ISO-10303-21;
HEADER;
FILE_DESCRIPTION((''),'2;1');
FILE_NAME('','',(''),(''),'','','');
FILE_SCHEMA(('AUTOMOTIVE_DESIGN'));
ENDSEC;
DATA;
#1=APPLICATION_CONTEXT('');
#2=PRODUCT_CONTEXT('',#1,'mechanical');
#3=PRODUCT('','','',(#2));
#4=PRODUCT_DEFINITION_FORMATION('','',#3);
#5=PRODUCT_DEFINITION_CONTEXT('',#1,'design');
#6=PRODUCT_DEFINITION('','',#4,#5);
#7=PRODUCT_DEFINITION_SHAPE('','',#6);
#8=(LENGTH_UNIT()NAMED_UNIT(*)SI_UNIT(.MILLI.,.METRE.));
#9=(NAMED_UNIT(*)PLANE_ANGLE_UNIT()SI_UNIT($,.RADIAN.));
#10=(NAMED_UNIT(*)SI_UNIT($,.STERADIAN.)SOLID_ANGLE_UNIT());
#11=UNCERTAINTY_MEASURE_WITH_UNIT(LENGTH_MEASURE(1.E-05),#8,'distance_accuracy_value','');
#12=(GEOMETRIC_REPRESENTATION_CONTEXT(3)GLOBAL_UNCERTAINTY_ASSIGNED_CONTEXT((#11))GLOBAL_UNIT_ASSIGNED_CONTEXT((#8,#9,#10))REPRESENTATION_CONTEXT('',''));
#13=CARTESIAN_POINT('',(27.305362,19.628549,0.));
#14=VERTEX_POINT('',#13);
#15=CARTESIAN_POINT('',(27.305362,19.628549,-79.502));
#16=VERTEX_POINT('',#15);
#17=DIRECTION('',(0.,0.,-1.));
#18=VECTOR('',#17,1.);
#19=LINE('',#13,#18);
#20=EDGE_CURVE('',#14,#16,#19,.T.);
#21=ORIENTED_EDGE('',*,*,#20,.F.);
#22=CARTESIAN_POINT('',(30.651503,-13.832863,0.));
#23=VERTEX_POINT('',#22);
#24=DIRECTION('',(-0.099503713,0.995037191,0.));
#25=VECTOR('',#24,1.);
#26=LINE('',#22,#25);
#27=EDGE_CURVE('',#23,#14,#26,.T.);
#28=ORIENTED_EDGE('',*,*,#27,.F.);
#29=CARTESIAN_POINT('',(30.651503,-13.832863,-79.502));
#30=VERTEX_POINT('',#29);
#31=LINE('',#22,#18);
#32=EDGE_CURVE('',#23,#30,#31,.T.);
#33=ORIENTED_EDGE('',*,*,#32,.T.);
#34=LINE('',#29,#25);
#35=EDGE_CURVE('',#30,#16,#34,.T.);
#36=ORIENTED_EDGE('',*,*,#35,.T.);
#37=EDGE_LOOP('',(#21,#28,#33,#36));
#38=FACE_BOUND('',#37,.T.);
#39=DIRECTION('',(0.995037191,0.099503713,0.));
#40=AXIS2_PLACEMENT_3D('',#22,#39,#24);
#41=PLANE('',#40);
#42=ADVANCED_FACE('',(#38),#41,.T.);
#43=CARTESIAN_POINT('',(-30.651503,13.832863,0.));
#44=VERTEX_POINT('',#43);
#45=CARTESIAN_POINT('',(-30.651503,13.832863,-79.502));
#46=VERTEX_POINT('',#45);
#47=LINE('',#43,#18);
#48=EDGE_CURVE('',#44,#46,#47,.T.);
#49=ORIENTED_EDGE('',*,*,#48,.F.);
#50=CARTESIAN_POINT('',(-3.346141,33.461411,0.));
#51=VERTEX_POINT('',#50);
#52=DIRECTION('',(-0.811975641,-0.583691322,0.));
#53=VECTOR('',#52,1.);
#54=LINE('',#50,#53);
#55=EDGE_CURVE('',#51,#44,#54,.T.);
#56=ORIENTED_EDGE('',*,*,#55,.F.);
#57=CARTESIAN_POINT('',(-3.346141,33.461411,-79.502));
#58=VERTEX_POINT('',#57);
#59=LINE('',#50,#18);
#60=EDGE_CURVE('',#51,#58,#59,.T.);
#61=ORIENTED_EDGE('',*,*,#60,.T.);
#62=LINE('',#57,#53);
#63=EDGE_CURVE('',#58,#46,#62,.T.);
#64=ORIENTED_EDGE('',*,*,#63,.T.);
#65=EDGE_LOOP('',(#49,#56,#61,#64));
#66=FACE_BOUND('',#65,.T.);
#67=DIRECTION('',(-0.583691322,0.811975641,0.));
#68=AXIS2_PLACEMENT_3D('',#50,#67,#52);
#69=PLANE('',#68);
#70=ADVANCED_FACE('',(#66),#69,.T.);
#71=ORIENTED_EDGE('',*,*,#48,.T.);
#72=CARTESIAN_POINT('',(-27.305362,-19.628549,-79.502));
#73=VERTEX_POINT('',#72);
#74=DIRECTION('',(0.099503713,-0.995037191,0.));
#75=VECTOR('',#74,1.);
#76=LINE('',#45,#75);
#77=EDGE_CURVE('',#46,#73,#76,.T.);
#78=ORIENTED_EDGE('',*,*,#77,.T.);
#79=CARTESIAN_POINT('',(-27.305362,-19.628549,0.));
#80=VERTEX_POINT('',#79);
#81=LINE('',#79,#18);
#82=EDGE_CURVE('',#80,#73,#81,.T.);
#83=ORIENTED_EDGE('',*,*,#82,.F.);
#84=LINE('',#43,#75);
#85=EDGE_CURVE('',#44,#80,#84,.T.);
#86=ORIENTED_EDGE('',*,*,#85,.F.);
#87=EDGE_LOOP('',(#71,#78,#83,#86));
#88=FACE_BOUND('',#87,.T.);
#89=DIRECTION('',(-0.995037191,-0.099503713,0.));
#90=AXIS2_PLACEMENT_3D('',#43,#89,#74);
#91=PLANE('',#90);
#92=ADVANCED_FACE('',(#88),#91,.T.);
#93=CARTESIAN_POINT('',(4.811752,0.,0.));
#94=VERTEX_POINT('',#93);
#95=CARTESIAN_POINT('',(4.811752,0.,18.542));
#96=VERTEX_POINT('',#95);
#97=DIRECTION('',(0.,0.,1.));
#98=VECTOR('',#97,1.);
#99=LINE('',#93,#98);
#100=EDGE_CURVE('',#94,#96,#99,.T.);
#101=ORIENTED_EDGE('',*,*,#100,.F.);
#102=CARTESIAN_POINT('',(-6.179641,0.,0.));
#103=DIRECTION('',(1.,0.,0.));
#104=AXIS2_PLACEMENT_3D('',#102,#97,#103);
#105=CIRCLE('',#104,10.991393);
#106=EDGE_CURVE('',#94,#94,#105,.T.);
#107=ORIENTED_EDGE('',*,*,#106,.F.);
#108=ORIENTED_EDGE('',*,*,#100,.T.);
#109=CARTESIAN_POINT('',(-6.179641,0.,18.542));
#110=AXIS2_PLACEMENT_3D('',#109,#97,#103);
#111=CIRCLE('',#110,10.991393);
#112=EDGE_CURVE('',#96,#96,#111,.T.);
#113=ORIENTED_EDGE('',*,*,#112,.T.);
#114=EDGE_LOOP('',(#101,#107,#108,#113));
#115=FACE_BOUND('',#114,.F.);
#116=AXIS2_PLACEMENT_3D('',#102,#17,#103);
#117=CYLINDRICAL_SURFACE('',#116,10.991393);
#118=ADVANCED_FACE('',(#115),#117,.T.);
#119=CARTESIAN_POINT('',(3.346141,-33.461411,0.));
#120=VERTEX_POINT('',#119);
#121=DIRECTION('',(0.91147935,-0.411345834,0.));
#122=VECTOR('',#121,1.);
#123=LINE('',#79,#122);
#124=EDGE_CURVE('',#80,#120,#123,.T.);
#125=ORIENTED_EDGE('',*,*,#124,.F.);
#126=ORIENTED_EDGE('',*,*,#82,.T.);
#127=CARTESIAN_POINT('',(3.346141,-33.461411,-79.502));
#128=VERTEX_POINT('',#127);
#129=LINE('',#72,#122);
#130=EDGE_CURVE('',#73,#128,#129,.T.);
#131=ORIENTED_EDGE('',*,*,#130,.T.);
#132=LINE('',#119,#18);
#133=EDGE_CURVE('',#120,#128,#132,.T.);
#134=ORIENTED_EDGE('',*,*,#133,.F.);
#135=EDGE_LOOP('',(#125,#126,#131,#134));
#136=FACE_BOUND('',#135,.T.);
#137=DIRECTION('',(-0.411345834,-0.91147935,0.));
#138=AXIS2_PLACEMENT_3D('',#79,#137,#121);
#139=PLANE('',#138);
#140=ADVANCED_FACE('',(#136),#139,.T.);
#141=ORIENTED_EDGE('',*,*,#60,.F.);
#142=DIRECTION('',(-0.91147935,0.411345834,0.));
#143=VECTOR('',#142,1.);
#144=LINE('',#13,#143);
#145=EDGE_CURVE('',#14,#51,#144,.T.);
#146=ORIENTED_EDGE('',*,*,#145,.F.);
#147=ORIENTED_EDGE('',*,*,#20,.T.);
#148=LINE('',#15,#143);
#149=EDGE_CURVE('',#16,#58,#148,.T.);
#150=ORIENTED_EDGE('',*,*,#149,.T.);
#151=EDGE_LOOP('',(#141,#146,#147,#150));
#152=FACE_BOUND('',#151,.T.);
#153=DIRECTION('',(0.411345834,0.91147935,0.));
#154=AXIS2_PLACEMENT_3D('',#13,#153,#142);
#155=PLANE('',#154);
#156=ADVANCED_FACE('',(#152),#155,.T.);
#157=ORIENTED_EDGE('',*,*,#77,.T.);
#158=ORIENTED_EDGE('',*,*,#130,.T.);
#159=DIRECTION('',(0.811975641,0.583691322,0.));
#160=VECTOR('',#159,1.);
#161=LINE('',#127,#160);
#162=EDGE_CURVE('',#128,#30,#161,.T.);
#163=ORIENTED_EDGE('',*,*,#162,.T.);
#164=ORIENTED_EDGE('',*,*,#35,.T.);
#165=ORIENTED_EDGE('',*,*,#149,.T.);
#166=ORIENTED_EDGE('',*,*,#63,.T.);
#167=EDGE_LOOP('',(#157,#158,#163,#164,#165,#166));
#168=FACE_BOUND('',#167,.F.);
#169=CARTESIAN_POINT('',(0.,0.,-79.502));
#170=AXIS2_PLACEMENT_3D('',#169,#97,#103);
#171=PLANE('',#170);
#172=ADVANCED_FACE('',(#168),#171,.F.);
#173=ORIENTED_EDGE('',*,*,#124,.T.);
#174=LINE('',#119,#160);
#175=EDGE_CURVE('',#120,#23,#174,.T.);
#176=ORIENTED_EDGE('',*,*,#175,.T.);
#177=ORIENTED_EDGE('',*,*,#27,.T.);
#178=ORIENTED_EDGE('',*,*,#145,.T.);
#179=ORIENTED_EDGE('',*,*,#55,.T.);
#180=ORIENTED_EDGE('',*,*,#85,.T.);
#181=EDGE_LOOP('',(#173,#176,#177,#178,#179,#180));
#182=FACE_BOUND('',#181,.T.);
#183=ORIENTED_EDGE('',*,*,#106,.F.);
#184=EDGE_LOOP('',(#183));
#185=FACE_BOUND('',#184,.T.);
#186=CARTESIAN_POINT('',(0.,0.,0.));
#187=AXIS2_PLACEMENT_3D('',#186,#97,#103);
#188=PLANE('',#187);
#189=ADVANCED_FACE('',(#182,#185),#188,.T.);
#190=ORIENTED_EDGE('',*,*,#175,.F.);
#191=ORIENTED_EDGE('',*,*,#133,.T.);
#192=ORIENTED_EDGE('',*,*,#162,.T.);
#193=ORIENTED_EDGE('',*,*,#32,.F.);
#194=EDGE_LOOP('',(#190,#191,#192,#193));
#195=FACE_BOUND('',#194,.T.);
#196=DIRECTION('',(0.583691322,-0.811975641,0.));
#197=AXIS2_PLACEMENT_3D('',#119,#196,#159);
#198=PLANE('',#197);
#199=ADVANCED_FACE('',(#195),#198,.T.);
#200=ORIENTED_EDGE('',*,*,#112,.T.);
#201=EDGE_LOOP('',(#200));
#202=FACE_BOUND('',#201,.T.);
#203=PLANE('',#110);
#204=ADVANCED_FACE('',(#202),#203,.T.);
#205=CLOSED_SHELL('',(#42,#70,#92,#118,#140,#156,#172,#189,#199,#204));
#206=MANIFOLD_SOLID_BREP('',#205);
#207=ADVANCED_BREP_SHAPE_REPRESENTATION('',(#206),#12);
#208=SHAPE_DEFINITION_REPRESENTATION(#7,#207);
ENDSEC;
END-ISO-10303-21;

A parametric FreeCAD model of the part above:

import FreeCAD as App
import Part
import Sketcher
Q = App.Units.Quantity

doc = App.newDocument("Part")
body = doc.addObject("PartDesign::Body", "Body")

sketch1 = body.newObject("Sketcher::SketchObject", "Sketch")
sketch1.AttachmentSupport = (doc.getObject("XY_Plane"), [""])
sketch1.MapMode = "FlatFace"
sketch1.addGeometry([
    Part.LineSegment(App.Vector(-3.346141, 33.461411, 0), App.Vector(-30.651503, 13.832863, 0)),
    Part.LineSegment(App.Vector(-30.651503, 13.832863, 0), App.Vector(-27.305362, -19.628549, 0)),
    Part.LineSegment(App.Vector(-27.305362, -19.628549, 0), App.Vector(3.346141, -33.461411, 0)),
    Part.LineSegment(App.Vector(3.346141, -33.461411, 0), App.Vector(30.651503, -13.832863, 0)),
    Part.LineSegment(App.Vector(30.651503, -13.832863, 0), App.Vector(27.305362, 19.628549, 0)),
    Part.LineSegment(App.Vector(27.305362, 19.628549, 0), App.Vector(-3.346141, 33.461411, 0)),
], False)
sketch1.addConstraint([
    Sketcher.Constraint("Coincident", 0, 2, 1, 1),
    Sketcher.Constraint("Coincident", 1, 2, 2, 1),
    Sketcher.Constraint("Coincident", 2, 2, 3, 1),
    Sketcher.Constraint("Coincident", 3, 2, 4, 1),
    Sketcher.Constraint("Coincident", 4, 2, 5, 1),
    Sketcher.Constraint("Coincident", 5, 2, 0, 1),
    Sketcher.Constraint("Symmetric", 0, 2, 3, 2, -1, 1),
    Sketcher.Constraint("Symmetric", 1, 2, 4, 2, -1, 1),
    Sketcher.Constraint("Symmetric", 2, 2, 5, 2, -1, 1),
    Sketcher.Constraint("Equal", 0, 1),
    Sketcher.Constraint("Equal", 1, 2),
    Sketcher.Constraint("Distance", 0, 33.628302),
    Sketcher.Constraint("DistanceX", 1, 2, -1, 1, 27.305362),
    Sketcher.Constraint("DistanceY", 1, 2, -1, 1, 19.628549),
    Sketcher.Constraint("DistanceX", -1, 1, 2, 2, 3.346141),
])
pad1 = body.newObject("PartDesign::Pad", "Pad")
pad1.Profile = sketch1
pad1.Length = Q("3.13 in")
pad1.Reversed = True

sketch2 = body.newObject("Sketcher::SketchObject", "Sketch001")
sketch2.AttachmentSupport = (doc.getObject("XY_Plane"), [""])
sketch2.MapMode = "FlatFace"
sketch2.addGeometry(Part.Circle(App.Vector(-6.179641, 0, 0), App.Vector(0, 0, 1), 10.991393), False)
sketch2.addConstraint([
    Sketcher.Constraint("PointOnObject", 0, 3, -1),
    Sketcher.Constraint("Diameter", 0, 21.982786),
    Sketcher.Constraint("DistanceX", 0, 3, -1, 1, 6.179641),
])
pad2 = body.newObject("PartDesign::Pad", "Pad001")
pad2.Profile = sketch2
pad2.Length = Q("0.73 in")

doc.recompute()
